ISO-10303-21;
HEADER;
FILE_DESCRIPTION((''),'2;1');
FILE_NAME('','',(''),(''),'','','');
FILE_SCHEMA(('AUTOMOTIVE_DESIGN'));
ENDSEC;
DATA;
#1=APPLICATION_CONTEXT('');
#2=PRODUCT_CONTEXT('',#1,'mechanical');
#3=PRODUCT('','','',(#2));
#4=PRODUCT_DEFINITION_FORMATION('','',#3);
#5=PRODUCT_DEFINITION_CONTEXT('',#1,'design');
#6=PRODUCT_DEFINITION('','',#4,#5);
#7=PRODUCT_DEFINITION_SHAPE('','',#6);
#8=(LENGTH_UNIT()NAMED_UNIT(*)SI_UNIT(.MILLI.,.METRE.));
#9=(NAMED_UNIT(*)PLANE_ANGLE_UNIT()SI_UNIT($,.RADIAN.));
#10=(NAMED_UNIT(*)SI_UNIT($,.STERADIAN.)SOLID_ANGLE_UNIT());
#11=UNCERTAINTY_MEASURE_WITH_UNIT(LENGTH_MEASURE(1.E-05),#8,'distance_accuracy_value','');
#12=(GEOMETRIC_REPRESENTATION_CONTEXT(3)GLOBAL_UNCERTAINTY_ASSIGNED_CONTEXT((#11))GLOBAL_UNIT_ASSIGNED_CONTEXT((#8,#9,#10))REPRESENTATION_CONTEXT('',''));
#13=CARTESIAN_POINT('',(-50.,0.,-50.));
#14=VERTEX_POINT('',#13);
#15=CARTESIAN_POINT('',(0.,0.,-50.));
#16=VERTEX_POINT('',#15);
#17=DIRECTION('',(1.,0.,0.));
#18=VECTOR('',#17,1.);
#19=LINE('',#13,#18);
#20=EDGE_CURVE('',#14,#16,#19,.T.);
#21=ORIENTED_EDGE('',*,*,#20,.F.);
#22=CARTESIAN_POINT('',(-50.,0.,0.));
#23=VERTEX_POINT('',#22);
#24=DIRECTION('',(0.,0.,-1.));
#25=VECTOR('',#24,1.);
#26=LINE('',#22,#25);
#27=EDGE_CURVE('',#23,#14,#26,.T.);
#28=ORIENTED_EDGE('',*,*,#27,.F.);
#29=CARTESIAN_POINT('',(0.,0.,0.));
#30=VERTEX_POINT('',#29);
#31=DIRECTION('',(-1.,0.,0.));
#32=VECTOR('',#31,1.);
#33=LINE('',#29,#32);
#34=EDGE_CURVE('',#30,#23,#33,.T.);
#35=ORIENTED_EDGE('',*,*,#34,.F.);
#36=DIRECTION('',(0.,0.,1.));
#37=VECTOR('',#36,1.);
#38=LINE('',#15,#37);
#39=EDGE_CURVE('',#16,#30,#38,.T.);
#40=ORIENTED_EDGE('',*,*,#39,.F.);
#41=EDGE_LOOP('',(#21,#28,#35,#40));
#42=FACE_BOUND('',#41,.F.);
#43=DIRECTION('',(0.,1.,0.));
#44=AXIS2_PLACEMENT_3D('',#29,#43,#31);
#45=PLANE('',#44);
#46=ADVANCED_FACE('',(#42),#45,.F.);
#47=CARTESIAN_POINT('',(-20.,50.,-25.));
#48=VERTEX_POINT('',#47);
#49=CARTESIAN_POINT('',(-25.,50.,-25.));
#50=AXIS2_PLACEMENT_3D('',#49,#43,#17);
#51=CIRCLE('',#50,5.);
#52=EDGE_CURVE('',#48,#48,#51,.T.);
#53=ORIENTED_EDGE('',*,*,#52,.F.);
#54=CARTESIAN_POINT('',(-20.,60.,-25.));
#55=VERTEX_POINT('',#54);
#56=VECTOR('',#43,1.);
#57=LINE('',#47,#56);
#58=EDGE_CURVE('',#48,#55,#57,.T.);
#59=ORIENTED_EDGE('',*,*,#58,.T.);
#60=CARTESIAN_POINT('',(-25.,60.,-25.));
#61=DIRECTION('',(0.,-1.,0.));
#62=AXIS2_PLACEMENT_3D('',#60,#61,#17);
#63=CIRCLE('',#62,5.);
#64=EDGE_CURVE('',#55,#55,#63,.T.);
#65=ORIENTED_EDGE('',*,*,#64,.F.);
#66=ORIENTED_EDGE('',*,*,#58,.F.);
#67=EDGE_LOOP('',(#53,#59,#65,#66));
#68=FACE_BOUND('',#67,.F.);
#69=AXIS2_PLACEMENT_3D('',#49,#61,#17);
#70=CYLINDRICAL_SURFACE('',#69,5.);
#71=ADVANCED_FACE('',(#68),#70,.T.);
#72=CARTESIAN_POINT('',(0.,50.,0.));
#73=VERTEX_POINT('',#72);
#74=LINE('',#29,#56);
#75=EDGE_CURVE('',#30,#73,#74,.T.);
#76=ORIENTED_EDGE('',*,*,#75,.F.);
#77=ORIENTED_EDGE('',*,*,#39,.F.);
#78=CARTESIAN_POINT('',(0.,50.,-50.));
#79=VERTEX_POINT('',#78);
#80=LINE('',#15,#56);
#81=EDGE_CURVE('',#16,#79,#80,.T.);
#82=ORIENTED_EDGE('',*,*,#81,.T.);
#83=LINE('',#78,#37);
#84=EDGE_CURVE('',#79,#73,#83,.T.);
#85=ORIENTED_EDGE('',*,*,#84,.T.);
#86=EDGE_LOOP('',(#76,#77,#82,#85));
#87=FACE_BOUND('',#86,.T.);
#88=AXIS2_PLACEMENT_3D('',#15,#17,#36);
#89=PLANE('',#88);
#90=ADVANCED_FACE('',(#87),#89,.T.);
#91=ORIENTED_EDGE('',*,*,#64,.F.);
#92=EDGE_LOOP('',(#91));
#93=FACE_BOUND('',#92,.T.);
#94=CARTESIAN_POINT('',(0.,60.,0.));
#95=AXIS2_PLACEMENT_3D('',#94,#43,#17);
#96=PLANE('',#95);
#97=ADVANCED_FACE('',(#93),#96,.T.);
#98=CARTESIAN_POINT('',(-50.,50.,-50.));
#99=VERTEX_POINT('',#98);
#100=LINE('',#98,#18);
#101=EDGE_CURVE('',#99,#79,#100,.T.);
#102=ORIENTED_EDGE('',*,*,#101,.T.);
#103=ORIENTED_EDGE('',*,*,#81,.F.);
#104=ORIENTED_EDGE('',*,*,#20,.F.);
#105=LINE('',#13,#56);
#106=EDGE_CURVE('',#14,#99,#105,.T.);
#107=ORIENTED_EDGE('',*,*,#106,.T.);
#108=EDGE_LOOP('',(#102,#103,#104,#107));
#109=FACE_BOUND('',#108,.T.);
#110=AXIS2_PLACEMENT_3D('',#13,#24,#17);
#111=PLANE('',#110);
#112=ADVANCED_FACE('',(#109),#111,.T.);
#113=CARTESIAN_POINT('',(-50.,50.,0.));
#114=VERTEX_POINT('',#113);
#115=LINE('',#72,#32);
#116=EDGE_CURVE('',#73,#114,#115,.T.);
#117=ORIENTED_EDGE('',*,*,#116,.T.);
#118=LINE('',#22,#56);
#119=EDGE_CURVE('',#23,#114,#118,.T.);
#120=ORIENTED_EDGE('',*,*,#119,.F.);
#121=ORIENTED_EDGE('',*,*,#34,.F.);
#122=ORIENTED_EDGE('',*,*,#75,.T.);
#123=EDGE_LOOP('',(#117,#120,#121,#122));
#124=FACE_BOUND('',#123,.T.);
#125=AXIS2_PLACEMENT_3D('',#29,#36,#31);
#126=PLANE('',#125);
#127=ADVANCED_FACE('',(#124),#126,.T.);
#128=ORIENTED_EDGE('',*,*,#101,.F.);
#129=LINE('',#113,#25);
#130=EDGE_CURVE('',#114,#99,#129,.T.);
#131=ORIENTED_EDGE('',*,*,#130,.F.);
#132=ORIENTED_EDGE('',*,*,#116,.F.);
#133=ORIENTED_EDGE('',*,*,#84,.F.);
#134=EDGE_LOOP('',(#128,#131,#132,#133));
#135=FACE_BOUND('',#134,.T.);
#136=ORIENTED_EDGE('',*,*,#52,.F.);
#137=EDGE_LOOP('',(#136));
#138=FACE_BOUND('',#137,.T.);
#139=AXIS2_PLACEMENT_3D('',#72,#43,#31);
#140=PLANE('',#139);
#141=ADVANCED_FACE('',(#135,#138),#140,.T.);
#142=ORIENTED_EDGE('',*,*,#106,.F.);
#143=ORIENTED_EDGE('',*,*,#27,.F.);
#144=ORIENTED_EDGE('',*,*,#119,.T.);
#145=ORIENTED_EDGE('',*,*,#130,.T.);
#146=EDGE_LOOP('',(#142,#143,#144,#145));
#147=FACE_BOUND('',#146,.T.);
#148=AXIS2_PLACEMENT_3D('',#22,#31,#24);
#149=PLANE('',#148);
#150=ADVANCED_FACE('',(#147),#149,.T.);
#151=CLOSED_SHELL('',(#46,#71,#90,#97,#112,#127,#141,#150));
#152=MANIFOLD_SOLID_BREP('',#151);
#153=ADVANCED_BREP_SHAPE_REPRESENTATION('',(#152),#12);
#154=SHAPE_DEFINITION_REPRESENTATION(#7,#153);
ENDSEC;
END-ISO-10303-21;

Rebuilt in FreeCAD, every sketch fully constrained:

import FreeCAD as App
import Part
import Sketcher
Q = App.Units.Quantity


def add_polygon(sketch, points):
    """Adds a closed chain of lines whose ends are joined by coincident constraints."""
    first, n = sketch.GeometryCount, len(points)
    for a, b in zip(points, points[1:] + points[:1]):
        sketch.addGeometry(Part.LineSegment(App.Vector(*a, 0), App.Vector(*b, 0)), False)
    for i in range(n):
        sketch.addConstraint(Sketcher.Constraint("Coincident", first + i, 2, first + (i + 1) % n, 1))

doc = App.newDocument("Part")
params = doc.addObject("Spreadsheet::Sheet", "Params")
for row, (alias, value) in enumerate([
    ("sketch1_width", "50 mm"),
    ("pad1_length", "50 mm"),
    ("sketch2_diameter", "10 mm"),
    ("pad2_length", "10 mm"),
], start=1):
    params.set(f"A{row}", alias)
    params.set(f"B{row}", "=" + value)
    params.setAlias(f"B{row}", alias)

body = doc.addObject("PartDesign::Body", "Body")

# Sketch on XZ plane
sketch1 = doc.addObject("Sketcher::SketchObject", "Sketch")
body.addObject(sketch1)
sketch1.AttachmentSupport = (doc.XZ_Plane, [""])
sketch1.MapMode = "FlatFace"
add_polygon(sketch1, [(-50, 0), (0, 0), (0, -50), (-50, -50)])  # lines 0-3
sketch1.addConstraint([
    Sketcher.Constraint("Horizontal", 0),
    Sketcher.Constraint("Vertical", 1),
    Sketcher.Constraint("Horizontal", 2),
    Sketcher.Constraint("Vertical", 3),
    Sketcher.Constraint("Coincident", 0, 2, -1, 1),
    Sketcher.Constraint("Equal", 2, 1),
    Sketcher.Constraint("DistanceX", 0, 1, 0, 2, Q("50 mm")),
])
sketch1.setExpression("Constraints[10]", "Params.sketch1_width")
pad1 = doc.addObject("PartDesign::Pad", "Pad")
body.addObject(pad1)
pad1.Profile = sketch1
pad1.setExpression("Length", "Params.pad1_length")
pad1.Reversed = True

# Sketch on XZ plane
sketch2 = doc.addObject("Sketcher::SketchObject", "Sketch001")
body.addObject(sketch2)
sketch2.AttachmentSupport = (doc.XZ_Plane, [""])
sketch2.MapMode = "FlatFace"
sketch2.AttachmentOffset = App.Placement(App.Vector(0, 0, -50), App.Rotation())
sketch2.addGeometry(Part.Circle(App.Vector(-25, -25, 0), App.Vector(0, 0, 1), 5), False)
sketch2.addConstraint([
    Sketcher.Constraint("Diameter", 0, Q("10 mm")),
    Sketcher.Constraint("DistanceX", 0, 3, -1, 1, Q("25 mm")),
    Sketcher.Constraint("DistanceY", 0, 3, -1, 1, Q("25 mm")),
])
sketch2.setExpression("Constraints[0]", "Params.sketch2_diameter")
pad2 = doc.addObject("PartDesign::Pad", "Pad001")
body.addObject(pad2)
pad2.Profile = sketch2
pad2.setExpression("Length", "Params.pad2_length")
pad2.Reversed = True

doc.recompute()
